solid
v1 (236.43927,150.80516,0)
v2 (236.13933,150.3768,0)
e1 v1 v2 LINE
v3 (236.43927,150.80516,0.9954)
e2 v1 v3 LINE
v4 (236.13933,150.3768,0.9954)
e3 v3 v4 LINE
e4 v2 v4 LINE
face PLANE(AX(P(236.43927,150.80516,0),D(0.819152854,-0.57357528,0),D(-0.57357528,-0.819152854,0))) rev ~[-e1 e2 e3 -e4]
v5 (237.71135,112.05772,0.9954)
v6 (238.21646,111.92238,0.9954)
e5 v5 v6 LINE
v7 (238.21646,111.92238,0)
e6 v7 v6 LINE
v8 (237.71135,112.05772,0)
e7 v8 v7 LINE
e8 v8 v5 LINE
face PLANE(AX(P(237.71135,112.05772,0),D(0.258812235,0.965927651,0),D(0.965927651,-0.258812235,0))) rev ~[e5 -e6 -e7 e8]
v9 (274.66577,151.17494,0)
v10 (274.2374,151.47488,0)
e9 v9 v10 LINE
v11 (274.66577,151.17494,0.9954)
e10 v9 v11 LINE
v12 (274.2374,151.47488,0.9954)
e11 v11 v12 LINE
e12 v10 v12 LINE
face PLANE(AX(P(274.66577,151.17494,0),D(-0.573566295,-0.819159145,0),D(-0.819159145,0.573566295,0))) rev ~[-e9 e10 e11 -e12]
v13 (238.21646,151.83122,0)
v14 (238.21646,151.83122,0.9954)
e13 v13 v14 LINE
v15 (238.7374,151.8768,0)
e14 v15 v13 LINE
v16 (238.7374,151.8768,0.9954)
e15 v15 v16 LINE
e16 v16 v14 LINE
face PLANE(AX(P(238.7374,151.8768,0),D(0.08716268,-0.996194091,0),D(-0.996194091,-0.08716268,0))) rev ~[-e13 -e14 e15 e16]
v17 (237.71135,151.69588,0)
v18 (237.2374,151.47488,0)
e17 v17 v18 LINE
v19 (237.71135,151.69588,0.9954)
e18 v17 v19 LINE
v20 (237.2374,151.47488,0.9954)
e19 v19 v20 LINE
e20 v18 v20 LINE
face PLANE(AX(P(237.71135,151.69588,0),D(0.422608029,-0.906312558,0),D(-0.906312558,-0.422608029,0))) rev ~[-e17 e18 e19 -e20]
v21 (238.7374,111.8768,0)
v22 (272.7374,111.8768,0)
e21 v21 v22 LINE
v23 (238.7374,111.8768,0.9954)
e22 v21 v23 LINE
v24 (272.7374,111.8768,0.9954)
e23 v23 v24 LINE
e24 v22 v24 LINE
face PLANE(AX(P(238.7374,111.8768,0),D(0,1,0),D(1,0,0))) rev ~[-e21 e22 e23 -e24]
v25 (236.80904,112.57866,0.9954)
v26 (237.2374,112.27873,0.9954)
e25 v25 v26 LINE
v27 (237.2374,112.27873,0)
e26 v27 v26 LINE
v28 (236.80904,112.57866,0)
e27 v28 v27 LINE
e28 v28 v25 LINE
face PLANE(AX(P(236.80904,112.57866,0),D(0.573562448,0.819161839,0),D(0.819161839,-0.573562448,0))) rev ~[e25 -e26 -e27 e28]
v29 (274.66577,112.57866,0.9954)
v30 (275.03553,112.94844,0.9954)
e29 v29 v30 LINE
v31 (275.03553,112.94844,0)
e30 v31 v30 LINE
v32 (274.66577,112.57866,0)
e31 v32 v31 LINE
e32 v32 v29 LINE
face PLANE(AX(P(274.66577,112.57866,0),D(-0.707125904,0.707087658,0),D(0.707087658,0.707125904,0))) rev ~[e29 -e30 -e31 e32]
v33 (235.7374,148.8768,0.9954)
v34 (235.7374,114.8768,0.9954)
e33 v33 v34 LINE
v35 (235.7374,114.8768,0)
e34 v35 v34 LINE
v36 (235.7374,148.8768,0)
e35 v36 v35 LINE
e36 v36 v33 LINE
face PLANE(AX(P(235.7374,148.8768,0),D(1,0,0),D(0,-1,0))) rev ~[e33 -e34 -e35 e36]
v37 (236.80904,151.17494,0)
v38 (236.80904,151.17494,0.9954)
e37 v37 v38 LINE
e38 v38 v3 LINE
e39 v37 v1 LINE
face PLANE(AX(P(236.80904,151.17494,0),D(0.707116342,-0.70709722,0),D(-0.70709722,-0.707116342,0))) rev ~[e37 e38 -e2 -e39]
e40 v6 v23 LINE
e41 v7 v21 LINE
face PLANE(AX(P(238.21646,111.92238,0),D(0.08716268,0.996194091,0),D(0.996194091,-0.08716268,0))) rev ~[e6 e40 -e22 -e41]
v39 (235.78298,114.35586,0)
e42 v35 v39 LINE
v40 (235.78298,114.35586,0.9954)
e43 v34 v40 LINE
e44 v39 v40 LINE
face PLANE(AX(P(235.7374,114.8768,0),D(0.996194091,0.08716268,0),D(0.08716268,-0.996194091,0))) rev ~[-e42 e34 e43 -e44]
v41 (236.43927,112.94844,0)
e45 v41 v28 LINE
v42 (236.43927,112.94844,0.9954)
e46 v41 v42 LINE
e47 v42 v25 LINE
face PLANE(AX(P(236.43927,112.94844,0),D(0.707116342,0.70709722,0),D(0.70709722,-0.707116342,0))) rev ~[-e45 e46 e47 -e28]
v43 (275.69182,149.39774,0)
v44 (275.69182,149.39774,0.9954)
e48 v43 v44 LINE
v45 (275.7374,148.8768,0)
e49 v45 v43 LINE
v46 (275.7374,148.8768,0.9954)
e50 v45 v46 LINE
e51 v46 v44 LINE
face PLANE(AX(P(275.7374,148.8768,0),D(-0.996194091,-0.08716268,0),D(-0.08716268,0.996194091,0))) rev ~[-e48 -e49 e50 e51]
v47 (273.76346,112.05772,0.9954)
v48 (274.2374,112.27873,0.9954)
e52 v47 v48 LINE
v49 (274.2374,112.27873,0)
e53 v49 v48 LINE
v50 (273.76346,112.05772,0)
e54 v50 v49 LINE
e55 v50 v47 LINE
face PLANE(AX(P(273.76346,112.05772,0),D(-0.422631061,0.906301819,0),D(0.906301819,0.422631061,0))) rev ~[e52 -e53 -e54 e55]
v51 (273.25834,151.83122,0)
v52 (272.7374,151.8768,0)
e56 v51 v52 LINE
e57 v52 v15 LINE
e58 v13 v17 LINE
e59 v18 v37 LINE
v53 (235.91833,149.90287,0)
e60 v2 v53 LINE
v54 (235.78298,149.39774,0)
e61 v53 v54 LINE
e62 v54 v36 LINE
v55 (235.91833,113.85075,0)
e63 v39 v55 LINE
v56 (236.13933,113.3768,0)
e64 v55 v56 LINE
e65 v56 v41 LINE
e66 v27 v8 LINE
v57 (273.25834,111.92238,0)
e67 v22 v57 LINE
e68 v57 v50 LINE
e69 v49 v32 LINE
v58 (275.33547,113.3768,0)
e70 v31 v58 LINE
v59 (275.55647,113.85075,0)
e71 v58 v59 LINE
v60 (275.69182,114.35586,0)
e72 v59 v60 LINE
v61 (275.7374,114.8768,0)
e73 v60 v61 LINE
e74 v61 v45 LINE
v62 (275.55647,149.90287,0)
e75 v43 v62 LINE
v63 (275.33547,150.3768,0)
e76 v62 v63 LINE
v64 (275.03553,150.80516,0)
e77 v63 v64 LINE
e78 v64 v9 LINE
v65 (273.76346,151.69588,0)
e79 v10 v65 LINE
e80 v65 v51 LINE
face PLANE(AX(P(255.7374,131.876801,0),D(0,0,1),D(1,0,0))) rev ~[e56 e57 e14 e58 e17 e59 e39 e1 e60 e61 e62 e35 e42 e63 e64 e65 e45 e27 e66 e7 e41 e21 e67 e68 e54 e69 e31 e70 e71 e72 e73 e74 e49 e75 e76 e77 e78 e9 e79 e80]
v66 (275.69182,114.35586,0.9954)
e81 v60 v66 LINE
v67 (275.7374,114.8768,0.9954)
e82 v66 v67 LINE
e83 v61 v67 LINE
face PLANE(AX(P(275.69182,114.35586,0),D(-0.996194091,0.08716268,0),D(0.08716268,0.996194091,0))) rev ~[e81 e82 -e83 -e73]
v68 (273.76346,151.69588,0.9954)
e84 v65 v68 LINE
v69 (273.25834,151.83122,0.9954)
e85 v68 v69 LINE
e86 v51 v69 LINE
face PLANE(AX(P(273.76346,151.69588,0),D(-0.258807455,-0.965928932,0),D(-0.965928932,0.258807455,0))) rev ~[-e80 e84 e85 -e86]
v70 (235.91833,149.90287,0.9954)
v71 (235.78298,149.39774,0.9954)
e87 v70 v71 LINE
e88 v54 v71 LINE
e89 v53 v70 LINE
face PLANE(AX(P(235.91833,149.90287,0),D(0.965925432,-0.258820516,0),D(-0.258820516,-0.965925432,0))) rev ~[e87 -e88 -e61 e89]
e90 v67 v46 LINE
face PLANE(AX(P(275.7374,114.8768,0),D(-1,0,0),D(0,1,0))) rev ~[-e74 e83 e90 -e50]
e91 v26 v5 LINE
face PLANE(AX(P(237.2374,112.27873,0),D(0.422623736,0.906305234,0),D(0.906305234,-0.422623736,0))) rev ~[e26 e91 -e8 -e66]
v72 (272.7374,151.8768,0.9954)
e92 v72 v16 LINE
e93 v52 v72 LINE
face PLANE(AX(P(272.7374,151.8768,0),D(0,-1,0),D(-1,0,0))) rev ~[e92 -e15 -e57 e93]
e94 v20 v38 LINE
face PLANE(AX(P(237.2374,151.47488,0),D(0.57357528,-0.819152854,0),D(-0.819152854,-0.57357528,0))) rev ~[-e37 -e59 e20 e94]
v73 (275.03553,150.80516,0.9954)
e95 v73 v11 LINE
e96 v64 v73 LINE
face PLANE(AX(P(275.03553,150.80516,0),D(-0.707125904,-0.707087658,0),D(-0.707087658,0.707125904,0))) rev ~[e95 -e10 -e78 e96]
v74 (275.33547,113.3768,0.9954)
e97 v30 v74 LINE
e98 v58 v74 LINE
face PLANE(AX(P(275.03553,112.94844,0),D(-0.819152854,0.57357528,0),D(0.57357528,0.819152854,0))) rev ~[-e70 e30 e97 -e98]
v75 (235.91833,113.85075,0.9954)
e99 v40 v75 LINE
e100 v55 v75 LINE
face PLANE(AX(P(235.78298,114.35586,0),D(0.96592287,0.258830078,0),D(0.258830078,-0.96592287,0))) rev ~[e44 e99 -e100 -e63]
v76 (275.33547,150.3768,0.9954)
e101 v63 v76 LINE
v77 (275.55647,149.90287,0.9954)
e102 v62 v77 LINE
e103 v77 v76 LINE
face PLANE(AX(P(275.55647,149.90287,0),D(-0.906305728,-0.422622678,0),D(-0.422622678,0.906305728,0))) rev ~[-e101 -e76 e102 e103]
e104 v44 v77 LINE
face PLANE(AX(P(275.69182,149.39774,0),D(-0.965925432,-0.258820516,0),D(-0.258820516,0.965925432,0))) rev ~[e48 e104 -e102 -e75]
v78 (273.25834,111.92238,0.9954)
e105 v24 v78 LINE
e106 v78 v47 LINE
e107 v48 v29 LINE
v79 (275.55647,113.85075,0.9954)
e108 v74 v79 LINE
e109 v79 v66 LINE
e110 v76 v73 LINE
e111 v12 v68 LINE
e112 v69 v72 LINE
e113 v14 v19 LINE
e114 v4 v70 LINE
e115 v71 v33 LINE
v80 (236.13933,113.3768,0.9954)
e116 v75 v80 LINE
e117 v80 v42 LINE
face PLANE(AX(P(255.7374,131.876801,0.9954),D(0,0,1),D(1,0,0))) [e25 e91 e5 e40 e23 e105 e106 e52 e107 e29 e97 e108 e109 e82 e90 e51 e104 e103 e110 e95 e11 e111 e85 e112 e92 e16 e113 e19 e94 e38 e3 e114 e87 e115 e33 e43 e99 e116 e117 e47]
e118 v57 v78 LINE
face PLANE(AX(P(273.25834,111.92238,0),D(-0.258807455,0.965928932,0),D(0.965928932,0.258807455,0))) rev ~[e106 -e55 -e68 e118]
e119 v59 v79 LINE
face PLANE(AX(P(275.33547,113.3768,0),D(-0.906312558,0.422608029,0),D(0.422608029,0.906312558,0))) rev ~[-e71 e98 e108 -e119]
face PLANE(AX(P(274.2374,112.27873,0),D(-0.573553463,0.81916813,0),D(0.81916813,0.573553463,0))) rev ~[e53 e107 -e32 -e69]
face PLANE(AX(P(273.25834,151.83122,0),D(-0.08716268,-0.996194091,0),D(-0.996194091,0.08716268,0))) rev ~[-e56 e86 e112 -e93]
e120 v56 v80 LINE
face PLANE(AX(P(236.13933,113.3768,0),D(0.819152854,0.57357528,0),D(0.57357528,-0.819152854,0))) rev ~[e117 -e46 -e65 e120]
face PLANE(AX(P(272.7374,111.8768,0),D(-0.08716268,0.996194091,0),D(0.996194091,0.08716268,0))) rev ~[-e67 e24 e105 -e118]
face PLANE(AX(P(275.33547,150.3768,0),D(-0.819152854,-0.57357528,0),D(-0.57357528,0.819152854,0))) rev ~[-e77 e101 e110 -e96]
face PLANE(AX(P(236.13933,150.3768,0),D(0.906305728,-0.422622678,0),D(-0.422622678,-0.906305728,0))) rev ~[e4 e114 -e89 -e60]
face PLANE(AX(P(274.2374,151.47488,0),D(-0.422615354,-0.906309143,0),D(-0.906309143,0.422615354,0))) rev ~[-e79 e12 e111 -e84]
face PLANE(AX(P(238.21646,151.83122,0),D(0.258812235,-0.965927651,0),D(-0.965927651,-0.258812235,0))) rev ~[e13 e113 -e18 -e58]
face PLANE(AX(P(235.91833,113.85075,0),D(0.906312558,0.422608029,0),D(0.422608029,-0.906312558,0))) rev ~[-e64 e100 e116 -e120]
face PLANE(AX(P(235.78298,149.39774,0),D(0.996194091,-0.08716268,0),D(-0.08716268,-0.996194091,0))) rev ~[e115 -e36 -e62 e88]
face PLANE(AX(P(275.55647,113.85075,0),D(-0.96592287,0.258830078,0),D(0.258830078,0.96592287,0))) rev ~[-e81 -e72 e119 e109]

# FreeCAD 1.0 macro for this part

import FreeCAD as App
import Part
import Sketcher
from FreeCAD import Vector
Q = App.Units.Quantity


def add_polygon(sketch, points):
    """Adds a closed chain of lines whose ends are joined by coincident constraints."""
    first, n = sketch.GeometryCount, len(points)
    for a, b in zip(points, points[1:] + points[:1]):
        sketch.addGeometry(Part.LineSegment(App.Vector(*a, 0), App.Vector(*b, 0)), False)
    for i in range(n):
        sketch.addConstraint(Sketcher.Constraint("Coincident", first + i, 2, first + (i + 1) % n, 1))

doc = App.newDocument("Part")
body = doc.addObject("PartDesign::Body", "Body")

sketch1 = body.newObject("Sketcher::SketchObject", "Sketch")
sketch1.AttachmentSupport = (doc.getObject("XY_Plane"), [""])
sketch1.MapMode = "FlatFace"
add_polygon(sketch1, [(238.7374, 111.8768), (272.7374, 111.8768), (273.25834, 111.92238), (273.76346, 112.05772), (274.2374, 112.27873), (274.66577, 112.57866), (275.03553, 112.94844), (275.33547, 113.3768), (275.55647, 113.85075), (275.69182, 114.35586), (275.7374, 114.8768), (275.7374, 148.8768), (275.69182, 149.39774), (275.55647, 149.90287), (275.33547, 150.3768), (275.03553, 150.80516), (274.66577, 151.17494), (274.2374, 151.47488), (273.76346, 151.69588), (273.25834, 151.83122), (272.7374, 151.8768), (238.7374, 151.8768), (238.21646, 151.83122), (237.71135, 151.69588), (237.2374, 151.47488), (236.80904, 151.17494), (236.43927, 150.80516), (236.13933, 150.3768), (235.91833, 149.90287), (235.78298, 149.39774), (235.7374, 148.8768), (235.7374, 114.8768), (235.78298, 114.35586), (235.91833, 113.85075), (236.13933, 113.3768), (236.43927, 112.94844), (236.80904, 112.57866), (237.2374, 112.27873), (237.71135, 112.05772), (238.21646, 111.92238)])
sketch1.addConstraint(Sketcher.Constraint("Horizontal", 0))
sketch1.addConstraint(Sketcher.Constraint("Vertical", 10))
sketch1.addConstraint(Sketcher.Constraint("Horizontal", 20))
sketch1.addConstraint(Sketcher.Constraint("Vertical", 30))
sketch1.addConstraint(Sketcher.Constraint("Perpendicular", 1, 11))
sketch1.addConstraint(Sketcher.Constraint("Perpendicular", 9, 19))
sketch1.addConstraint(Sketcher.Constraint("Perpendicular", 11, 21))
sketch1.addConstraint(Sketcher.Constraint("Perpendicular", 14, 24))
sketch1.addConstraint(Sketcher.Constraint("Parallel", 6, 26))
sketch1.addConstraint(Sketcher.Constraint("Perpendicular", 19, 29))
sketch1.addConstraint(Sketcher.Constraint("Perpendicular", 21, 31))
sketch1.addConstraint(Sketcher.Constraint("Perpendicular", 23, 33))
sketch1.addConstraint(Sketcher.Constraint("Perpendicular", 24, 34))
sketch1.addConstraint(Sketcher.Constraint("Perpendicular", 27, 37))
sketch1.addConstraint(Sketcher.Constraint("Perpendicular", 29, 39))
sketch1.addConstraint(Sketcher.Constraint("Horizontal", 18, 2, 21, 2))
sketch1.addConstraint(Sketcher.Constraint("Horizontal", 17, 2, 22, 2))
sketch1.addConstraint(Sketcher.Constraint("Horizontal", 16, 2, 23, 2))
sketch1.addConstraint(Sketcher.Constraint("Horizontal", 15, 2, 24, 2))
sketch1.addConstraint(Sketcher.Constraint("Horizontal", 14, 2, 25, 2))
sketch1.addConstraint(Sketcher.Constraint("Horizontal", 13, 2, 26, 2))
sketch1.addConstraint(Sketcher.Constraint("Horizontal", 12, 2, 27, 2))
sketch1.addConstraint(Sketcher.Constraint("Horizontal", 11, 2, 28, 2))
sketch1.addConstraint(Sketcher.Constraint("Horizontal", 10, 2, 29, 2))
sketch1.addConstraint(Sketcher.Constraint("Horizontal", 9, 2, 30, 2))
sketch1.addConstraint(Sketcher.Constraint("Horizontal", 8, 2, 31, 2))
sketch1.addConstraint(Sketcher.Constraint("Horizontal", 7, 2, 32, 2))
sketch1.addConstraint(Sketcher.Constraint("Horizontal", 6, 2, 33, 2))
sketch1.addConstraint(Sketcher.Constraint("Horizontal", 5, 2, 34, 2))
sketch1.addConstraint(Sketcher.Constraint("Horizontal", 4, 2, 35, 2))
sketch1.addConstraint(Sketcher.Constraint("Horizontal", 3, 2, 36, 2))
sketch1.addConstraint(Sketcher.Constraint("Horizontal", 2, 2, 37, 2))
sketch1.addConstraint(Sketcher.Constraint("Horizontal", 1, 2, 38, 2))
sketch1.addConstraint(Sketcher.Constraint("Vertical", 8, 2, 11, 2))
sketch1.addConstraint(Sketcher.Constraint("Vertical", 7, 2, 12, 2))
sketch1.addConstraint(Sketcher.Constraint("Vertical", 6, 2, 13, 2))
sketch1.addConstraint(Sketcher.Constraint("Vertical", 5, 2, 14, 2))
sketch1.addConstraint(Sketcher.Constraint("Vertical", 4, 2, 15, 2))
sketch1.addConstraint(Sketcher.Constraint("Vertical", 3, 2, 16, 2))
sketch1.addConstraint(Sketcher.Constraint("Vertical", 2, 2, 17, 2))
sketch1.addConstraint(Sketcher.Constraint("Vertical", 1, 2, 18, 2))
sketch1.addConstraint(Sketcher.Constraint("Vertical", 0, 2, 19, 2))
sketch1.addConstraint(Sketcher.Constraint("Vertical", 28, 2, 31, 2))
sketch1.addConstraint(Sketcher.Constraint("Vertical", 27, 2, 32, 2))
sketch1.addConstraint(Sketcher.Constraint("Vertical", 26, 2, 33, 2))
sketch1.addConstraint(Sketcher.Constraint("Vertical", 25, 2, 34, 2))
sketch1.addConstraint(Sketcher.Constraint("Vertical", 24, 2, 35, 2))
sketch1.addConstraint(Sketcher.Constraint("Vertical", 23, 2, 36, 2))
sketch1.addConstraint(Sketcher.Constraint("Vertical", 22, 2, 37, 2))
sketch1.addConstraint(Sketcher.Constraint("Vertical", 21, 2, 38, 2))
sketch1.addConstraint(Sketcher.Constraint("Equal", 20, 10))
sketch1.addConstraint(Sketcher.Constraint("Equal", 2, 3))
sketch1.addConstraint(Sketcher.Constraint("Equal", 4, 5))
sketch1.addConstraint(Sketcher.Constraint("Equal", 1, 6))
sketch1.addConstraint(Sketcher.Constraint("Equal", 6, 8))
sketch1.addConstraint(Sketcher.Constraint("Equal", 8, 9))
sketch1.addConstraint(Sketcher.Constraint("Equal", 5, 15))
sketch1.addConstraint(Sketcher.Constraint("Equal", 3, 16))
sketch1.addConstraint(Sketcher.Constraint("Equal", 15, 17))
sketch1.addConstraint(Sketcher.Constraint("Equal", 16, 18))
sketch1.addConstraint(Sketcher.Constraint("Equal", 7, 23))
sketch1.addConstraint(Sketcher.Constraint("Equal", 21, 24))
sketch1.addConstraint(Sketcher.Constraint("Equal", 13, 27))
sketch1.addConstraint(Sketcher.Constraint("Equal", 12, 28))
sketch1.addConstraint(Sketcher.Constraint("Equal", 27, 36))
sketch1.addConstraint(Sketcher.Constraint("Equal", 28, 37))
sketch1.addConstraint(Sketcher.Constraint("DistanceX", 0, 1, 0, 2, Q("34 mm")))
sketch1.addConstraint(Sketcher.Constraint("DistanceX", 0, 2, 3, 2, Q("1.5 mm")))
sketch1.addConstraint(Sketcher.Constraint("DistanceY", 6, 2, 9, 2, Q("1.5 mm")))
sketch1.addConstraint(Sketcher.Constraint("DistanceY", 10, 2, 13, 2, Q("1.5 mm")))
sketch1.addConstraint(Sketcher.Constraint("DistanceX", 23, 2, 20, 2, Q("1.5 mm")))
sketch1.addConstraint(Sketcher.Constraint("DistanceX", 6, 2, 7, 2, Q("0.221 mm")))
sketch1.addConstraint(Sketcher.Constraint("DistanceX", 21, 2, 17, 2, Q("35.547 mm")))
sketch1.addConstraint(Sketcher.Constraint("DistanceX", -1, 1, 0, 2, Q("272.7374 mm")))
sketch1.addConstraint(Sketcher.Constraint("DistanceY", -1, 1, 0, 2, Q("111.8768 mm")))
sketch1.addConstraint(Sketcher.Constraint("DistanceY", -1, 1, 6, 2, Q("113.3768 mm")))
sketch1.addConstraint(Sketcher.Constraint("DistanceX", -1, 1, 9, 2, Q("275.7374 mm")))
sketch1.addConstraint(Sketcher.Constraint("DistanceX", -1, 1, 29, 2, Q("235.7374 mm")))
sketch1.addConstraint(Sketcher.Constraint("DistanceX", 4, 2, 6, 2, Q("0.6697 mm")))
sketch1.addConstraint(Sketcher.Constraint("DistanceY", 4, 2, 8, 2, Q("1.7772 mm")))
pad1 = body.newObject("PartDesign::Pad", "Pad")
pad1.Profile = sketch1
pad1.Length = 0.9954

doc.recompute()
